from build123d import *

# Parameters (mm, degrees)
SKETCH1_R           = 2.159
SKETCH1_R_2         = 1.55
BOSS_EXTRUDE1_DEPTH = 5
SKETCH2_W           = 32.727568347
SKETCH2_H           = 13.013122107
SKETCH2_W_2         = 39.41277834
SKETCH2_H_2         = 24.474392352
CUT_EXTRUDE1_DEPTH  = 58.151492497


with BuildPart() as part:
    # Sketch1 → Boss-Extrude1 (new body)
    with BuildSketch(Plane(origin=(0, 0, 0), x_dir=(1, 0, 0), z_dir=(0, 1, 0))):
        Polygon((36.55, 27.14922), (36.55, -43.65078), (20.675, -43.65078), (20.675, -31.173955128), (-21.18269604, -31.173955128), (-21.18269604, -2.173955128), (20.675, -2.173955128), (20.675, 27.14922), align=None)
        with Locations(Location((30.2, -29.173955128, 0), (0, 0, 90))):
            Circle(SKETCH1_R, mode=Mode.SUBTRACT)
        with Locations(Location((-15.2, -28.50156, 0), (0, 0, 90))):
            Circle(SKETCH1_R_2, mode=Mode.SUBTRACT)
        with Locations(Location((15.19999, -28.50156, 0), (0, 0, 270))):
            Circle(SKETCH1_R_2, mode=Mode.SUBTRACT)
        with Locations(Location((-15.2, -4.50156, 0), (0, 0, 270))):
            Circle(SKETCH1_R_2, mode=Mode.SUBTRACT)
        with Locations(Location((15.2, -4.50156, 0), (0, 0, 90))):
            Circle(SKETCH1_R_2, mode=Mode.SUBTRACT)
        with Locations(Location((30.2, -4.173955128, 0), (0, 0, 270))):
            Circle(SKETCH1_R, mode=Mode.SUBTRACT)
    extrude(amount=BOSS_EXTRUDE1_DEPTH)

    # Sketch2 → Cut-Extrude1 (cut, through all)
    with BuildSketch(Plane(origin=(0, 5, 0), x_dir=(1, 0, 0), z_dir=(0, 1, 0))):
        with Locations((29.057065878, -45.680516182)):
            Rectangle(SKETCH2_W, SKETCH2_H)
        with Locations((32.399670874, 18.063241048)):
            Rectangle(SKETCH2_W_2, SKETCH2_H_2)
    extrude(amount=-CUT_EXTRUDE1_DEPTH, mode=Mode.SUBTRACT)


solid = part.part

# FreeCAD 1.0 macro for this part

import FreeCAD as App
import Part
import Sketcher


def add_polygon(sketch, points):
    """Adds a closed chain of lines whose ends are joined by coincident constraints."""
    first, n = sketch.GeometryCount, len(points)
    for a, b in zip(points, points[1:] + points[:1]):
        sketch.addGeometry(Part.LineSegment(App.Vector(*a, 0), App.Vector(*b, 0)), False)
    for i in range(n):
        sketch.addConstraint(Sketcher.Constraint("Coincident", first + i, 2, first + (i + 1) % n, 1))

doc = App.newDocument("Part")
body = doc.addObject("PartDesign::Body", "Body")

# Sketch on XZ plane
sketch1 = body.newObject("Sketcher::SketchObject", "Sketch")
sketch1.AttachmentSupport = (doc.getObject("XZ_Plane"), [""])
sketch1.MapMode = "FlatFace"
add_polygon(sketch1, [(36.5, 43.7), (36.5, -27.1), (20.7, -27.1), (20.7, 2.2), (-21.2, 2.2), (-21.2, 31.2), (20.7, 31.2), (20.7, 43.7)])  # lines 0-7
sketch1.addGeometry(Part.Circle(App.Vector(30.2, 29.2, 0), App.Vector(0, 0, 1), 2.2), False)  # 8
sketch1.addGeometry(Part.Circle(App.Vector(15.2, 28.5, 0), App.Vector(0, 0, 1), 1.6), False)  # 9
sketch1.addGeometry(Part.Circle(App.Vector(-15.2, 28.5, 0), App.Vector(0, 0, 1), 1.6), False)  # 10
sketch1.addGeometry(Part.Circle(App.Vector(30.2, 4.2, 0), App.Vector(0, 0, 1), 2.2), False)  # 11
sketch1.addGeometry(Part.Circle(App.Vector(15.2, 4.5, 0), App.Vector(0, 0, 1), 1.6), False)  # 12
sketch1.addGeometry(Part.Circle(App.Vector(-15.2, 4.5, 0), App.Vector(0, 0, 1), 1.6), False)  # 13
sketch1.addConstraint([
    Sketcher.Constraint("Vertical", 0),
    Sketcher.Constraint("Horizontal", 1),
    Sketcher.Constraint("Vertical", 2),
    Sketcher.Constraint("Horizontal", 3),
    Sketcher.Constraint("Vertical", 4),
    Sketcher.Constraint("Horizontal", 5),
    Sketcher.Constraint("Vertical", 6),
    Sketcher.Constraint("Horizontal", 7),
    Sketcher.Constraint("Equal", 9, 10),
    Sketcher.Constraint("Equal", 8, 11),
    Sketcher.Constraint("Equal", 10, 12),
    Sketcher.Constraint("Equal", 12, 13),
    Sketcher.Constraint("Symmetric", 9, 3, 10, 3, -2),
    Sketcher.Constraint("Symmetric", 12, 3, 13, 3, -2),
    Sketcher.Constraint("Vertical", 8, 3, 11, 3),
    Sketcher.Constraint("Vertical", 10, 3, 13, 3),
    Sketcher.Constraint("Vertical", 2, 2, 5, 2),
    Sketcher.Constraint("Diameter", 9, 3.1),
    Sketcher.Constraint("DistanceY", 4, 1, 4, 2, 29.0),
    Sketcher.Constraint("Diameter", 8, 4.318),
    Sketcher.Constraint("DistanceY", 0, 2, 0, 1, 70.8),
    Sketcher.Constraint("DistanceY", 11, 3, 8, 3, 25.0),
    Sketcher.Constraint("DistanceX", 12, 3, 11, 3, 15.0),
    Sketcher.Constraint("DistanceY", 12, 3, 9, 3, 24.0),
    Sketcher.Constraint("DistanceY", 2, 2, 11, 3, 2.0),
    Sketcher.Constraint("DistanceX", -1, 1, 8, 3, 30.2),
    Sketcher.Constraint("DistanceX", 1, 2, 1, 1, 15.875),
    Sketcher.Constraint("DistanceX", -1, 1, 0, 2, 36.55),
    Sketcher.Constraint("DistanceX", 3, 2, 3, 1, 41.857696),
    Sketcher.Constraint("DistanceY", 2, 1, 2, 2, 29.323175),
    Sketcher.Constraint("DistanceY", -1, 1, 9, 3, 28.50156),
    Sketcher.Constraint("DistanceY", 0, 2, -1, 1, 27.14922),
])
pad1 = body.newObject("PartDesign::Pad", "Pad")
pad1.Profile = sketch1
pad1.Length = 5
pad1.Reversed = True

# Sketch on XZ plane
sketch2 = body.newObject("Sketcher::SketchObject", "Sketch001")
sketch2.AttachmentSupport = (doc.getObject("XZ_Plane"), [""])
sketch2.MapMode = "FlatFace"
sketch2.AttachmentOffset = App.Placement(App.Vector(0, 0, -5), App.Rotation())
add_polygon(sketch2, [(13, 39), (13, 52), (45, 52), (45, 39)])  # lines 0-3
add_polygon(sketch2, [(13, -30), (13, -6), (52, -6), (52, -30)])  # lines 4-7
sketch2.addConstraint([
    Sketcher.Constraint("Vertical", 0),
    Sketcher.Constraint("Horizontal", 1),
    Sketcher.Constraint("Vertical", 2),
    Sketcher.Constraint("Horizontal", 3),
    Sketcher.Constraint("Vertical", 4),
    Sketcher.Constraint("Horizontal", 5),
    Sketcher.Constraint("Vertical", 6),
    Sketcher.Constraint("Horizontal", 7),
    Sketcher.Constraint("Vertical", 3, 2, 4, 2),
    Sketcher.Constraint("DistanceY", 4, 2, 3, 2, 45.0),
    Sketcher.Constraint("DistanceX", 1, 1, 1, 2, 32.727568),
    Sketcher.Constraint("DistanceX", 5, 1, 5, 2, 39.412778),
    Sketcher.Constraint("DistanceY", 0, 1, 0, 2, 13.013122),
    Sketcher.Constraint("DistanceY", 4, 1, 4, 2, 24.474392),
    Sketcher.Constraint("DistanceX", -1, 1, 0, 2, 12.693282),
    Sketcher.Constraint("DistanceY", -1, 1, 0, 2, 52.187077),
])
pocket1 = body.newObject("PartDesign::Pocket", "Pocket")
pocket1.Profile = sketch2
pocket1.Type = "ThroughAll"
pocket1.Reversed = True

doc.recompute()
